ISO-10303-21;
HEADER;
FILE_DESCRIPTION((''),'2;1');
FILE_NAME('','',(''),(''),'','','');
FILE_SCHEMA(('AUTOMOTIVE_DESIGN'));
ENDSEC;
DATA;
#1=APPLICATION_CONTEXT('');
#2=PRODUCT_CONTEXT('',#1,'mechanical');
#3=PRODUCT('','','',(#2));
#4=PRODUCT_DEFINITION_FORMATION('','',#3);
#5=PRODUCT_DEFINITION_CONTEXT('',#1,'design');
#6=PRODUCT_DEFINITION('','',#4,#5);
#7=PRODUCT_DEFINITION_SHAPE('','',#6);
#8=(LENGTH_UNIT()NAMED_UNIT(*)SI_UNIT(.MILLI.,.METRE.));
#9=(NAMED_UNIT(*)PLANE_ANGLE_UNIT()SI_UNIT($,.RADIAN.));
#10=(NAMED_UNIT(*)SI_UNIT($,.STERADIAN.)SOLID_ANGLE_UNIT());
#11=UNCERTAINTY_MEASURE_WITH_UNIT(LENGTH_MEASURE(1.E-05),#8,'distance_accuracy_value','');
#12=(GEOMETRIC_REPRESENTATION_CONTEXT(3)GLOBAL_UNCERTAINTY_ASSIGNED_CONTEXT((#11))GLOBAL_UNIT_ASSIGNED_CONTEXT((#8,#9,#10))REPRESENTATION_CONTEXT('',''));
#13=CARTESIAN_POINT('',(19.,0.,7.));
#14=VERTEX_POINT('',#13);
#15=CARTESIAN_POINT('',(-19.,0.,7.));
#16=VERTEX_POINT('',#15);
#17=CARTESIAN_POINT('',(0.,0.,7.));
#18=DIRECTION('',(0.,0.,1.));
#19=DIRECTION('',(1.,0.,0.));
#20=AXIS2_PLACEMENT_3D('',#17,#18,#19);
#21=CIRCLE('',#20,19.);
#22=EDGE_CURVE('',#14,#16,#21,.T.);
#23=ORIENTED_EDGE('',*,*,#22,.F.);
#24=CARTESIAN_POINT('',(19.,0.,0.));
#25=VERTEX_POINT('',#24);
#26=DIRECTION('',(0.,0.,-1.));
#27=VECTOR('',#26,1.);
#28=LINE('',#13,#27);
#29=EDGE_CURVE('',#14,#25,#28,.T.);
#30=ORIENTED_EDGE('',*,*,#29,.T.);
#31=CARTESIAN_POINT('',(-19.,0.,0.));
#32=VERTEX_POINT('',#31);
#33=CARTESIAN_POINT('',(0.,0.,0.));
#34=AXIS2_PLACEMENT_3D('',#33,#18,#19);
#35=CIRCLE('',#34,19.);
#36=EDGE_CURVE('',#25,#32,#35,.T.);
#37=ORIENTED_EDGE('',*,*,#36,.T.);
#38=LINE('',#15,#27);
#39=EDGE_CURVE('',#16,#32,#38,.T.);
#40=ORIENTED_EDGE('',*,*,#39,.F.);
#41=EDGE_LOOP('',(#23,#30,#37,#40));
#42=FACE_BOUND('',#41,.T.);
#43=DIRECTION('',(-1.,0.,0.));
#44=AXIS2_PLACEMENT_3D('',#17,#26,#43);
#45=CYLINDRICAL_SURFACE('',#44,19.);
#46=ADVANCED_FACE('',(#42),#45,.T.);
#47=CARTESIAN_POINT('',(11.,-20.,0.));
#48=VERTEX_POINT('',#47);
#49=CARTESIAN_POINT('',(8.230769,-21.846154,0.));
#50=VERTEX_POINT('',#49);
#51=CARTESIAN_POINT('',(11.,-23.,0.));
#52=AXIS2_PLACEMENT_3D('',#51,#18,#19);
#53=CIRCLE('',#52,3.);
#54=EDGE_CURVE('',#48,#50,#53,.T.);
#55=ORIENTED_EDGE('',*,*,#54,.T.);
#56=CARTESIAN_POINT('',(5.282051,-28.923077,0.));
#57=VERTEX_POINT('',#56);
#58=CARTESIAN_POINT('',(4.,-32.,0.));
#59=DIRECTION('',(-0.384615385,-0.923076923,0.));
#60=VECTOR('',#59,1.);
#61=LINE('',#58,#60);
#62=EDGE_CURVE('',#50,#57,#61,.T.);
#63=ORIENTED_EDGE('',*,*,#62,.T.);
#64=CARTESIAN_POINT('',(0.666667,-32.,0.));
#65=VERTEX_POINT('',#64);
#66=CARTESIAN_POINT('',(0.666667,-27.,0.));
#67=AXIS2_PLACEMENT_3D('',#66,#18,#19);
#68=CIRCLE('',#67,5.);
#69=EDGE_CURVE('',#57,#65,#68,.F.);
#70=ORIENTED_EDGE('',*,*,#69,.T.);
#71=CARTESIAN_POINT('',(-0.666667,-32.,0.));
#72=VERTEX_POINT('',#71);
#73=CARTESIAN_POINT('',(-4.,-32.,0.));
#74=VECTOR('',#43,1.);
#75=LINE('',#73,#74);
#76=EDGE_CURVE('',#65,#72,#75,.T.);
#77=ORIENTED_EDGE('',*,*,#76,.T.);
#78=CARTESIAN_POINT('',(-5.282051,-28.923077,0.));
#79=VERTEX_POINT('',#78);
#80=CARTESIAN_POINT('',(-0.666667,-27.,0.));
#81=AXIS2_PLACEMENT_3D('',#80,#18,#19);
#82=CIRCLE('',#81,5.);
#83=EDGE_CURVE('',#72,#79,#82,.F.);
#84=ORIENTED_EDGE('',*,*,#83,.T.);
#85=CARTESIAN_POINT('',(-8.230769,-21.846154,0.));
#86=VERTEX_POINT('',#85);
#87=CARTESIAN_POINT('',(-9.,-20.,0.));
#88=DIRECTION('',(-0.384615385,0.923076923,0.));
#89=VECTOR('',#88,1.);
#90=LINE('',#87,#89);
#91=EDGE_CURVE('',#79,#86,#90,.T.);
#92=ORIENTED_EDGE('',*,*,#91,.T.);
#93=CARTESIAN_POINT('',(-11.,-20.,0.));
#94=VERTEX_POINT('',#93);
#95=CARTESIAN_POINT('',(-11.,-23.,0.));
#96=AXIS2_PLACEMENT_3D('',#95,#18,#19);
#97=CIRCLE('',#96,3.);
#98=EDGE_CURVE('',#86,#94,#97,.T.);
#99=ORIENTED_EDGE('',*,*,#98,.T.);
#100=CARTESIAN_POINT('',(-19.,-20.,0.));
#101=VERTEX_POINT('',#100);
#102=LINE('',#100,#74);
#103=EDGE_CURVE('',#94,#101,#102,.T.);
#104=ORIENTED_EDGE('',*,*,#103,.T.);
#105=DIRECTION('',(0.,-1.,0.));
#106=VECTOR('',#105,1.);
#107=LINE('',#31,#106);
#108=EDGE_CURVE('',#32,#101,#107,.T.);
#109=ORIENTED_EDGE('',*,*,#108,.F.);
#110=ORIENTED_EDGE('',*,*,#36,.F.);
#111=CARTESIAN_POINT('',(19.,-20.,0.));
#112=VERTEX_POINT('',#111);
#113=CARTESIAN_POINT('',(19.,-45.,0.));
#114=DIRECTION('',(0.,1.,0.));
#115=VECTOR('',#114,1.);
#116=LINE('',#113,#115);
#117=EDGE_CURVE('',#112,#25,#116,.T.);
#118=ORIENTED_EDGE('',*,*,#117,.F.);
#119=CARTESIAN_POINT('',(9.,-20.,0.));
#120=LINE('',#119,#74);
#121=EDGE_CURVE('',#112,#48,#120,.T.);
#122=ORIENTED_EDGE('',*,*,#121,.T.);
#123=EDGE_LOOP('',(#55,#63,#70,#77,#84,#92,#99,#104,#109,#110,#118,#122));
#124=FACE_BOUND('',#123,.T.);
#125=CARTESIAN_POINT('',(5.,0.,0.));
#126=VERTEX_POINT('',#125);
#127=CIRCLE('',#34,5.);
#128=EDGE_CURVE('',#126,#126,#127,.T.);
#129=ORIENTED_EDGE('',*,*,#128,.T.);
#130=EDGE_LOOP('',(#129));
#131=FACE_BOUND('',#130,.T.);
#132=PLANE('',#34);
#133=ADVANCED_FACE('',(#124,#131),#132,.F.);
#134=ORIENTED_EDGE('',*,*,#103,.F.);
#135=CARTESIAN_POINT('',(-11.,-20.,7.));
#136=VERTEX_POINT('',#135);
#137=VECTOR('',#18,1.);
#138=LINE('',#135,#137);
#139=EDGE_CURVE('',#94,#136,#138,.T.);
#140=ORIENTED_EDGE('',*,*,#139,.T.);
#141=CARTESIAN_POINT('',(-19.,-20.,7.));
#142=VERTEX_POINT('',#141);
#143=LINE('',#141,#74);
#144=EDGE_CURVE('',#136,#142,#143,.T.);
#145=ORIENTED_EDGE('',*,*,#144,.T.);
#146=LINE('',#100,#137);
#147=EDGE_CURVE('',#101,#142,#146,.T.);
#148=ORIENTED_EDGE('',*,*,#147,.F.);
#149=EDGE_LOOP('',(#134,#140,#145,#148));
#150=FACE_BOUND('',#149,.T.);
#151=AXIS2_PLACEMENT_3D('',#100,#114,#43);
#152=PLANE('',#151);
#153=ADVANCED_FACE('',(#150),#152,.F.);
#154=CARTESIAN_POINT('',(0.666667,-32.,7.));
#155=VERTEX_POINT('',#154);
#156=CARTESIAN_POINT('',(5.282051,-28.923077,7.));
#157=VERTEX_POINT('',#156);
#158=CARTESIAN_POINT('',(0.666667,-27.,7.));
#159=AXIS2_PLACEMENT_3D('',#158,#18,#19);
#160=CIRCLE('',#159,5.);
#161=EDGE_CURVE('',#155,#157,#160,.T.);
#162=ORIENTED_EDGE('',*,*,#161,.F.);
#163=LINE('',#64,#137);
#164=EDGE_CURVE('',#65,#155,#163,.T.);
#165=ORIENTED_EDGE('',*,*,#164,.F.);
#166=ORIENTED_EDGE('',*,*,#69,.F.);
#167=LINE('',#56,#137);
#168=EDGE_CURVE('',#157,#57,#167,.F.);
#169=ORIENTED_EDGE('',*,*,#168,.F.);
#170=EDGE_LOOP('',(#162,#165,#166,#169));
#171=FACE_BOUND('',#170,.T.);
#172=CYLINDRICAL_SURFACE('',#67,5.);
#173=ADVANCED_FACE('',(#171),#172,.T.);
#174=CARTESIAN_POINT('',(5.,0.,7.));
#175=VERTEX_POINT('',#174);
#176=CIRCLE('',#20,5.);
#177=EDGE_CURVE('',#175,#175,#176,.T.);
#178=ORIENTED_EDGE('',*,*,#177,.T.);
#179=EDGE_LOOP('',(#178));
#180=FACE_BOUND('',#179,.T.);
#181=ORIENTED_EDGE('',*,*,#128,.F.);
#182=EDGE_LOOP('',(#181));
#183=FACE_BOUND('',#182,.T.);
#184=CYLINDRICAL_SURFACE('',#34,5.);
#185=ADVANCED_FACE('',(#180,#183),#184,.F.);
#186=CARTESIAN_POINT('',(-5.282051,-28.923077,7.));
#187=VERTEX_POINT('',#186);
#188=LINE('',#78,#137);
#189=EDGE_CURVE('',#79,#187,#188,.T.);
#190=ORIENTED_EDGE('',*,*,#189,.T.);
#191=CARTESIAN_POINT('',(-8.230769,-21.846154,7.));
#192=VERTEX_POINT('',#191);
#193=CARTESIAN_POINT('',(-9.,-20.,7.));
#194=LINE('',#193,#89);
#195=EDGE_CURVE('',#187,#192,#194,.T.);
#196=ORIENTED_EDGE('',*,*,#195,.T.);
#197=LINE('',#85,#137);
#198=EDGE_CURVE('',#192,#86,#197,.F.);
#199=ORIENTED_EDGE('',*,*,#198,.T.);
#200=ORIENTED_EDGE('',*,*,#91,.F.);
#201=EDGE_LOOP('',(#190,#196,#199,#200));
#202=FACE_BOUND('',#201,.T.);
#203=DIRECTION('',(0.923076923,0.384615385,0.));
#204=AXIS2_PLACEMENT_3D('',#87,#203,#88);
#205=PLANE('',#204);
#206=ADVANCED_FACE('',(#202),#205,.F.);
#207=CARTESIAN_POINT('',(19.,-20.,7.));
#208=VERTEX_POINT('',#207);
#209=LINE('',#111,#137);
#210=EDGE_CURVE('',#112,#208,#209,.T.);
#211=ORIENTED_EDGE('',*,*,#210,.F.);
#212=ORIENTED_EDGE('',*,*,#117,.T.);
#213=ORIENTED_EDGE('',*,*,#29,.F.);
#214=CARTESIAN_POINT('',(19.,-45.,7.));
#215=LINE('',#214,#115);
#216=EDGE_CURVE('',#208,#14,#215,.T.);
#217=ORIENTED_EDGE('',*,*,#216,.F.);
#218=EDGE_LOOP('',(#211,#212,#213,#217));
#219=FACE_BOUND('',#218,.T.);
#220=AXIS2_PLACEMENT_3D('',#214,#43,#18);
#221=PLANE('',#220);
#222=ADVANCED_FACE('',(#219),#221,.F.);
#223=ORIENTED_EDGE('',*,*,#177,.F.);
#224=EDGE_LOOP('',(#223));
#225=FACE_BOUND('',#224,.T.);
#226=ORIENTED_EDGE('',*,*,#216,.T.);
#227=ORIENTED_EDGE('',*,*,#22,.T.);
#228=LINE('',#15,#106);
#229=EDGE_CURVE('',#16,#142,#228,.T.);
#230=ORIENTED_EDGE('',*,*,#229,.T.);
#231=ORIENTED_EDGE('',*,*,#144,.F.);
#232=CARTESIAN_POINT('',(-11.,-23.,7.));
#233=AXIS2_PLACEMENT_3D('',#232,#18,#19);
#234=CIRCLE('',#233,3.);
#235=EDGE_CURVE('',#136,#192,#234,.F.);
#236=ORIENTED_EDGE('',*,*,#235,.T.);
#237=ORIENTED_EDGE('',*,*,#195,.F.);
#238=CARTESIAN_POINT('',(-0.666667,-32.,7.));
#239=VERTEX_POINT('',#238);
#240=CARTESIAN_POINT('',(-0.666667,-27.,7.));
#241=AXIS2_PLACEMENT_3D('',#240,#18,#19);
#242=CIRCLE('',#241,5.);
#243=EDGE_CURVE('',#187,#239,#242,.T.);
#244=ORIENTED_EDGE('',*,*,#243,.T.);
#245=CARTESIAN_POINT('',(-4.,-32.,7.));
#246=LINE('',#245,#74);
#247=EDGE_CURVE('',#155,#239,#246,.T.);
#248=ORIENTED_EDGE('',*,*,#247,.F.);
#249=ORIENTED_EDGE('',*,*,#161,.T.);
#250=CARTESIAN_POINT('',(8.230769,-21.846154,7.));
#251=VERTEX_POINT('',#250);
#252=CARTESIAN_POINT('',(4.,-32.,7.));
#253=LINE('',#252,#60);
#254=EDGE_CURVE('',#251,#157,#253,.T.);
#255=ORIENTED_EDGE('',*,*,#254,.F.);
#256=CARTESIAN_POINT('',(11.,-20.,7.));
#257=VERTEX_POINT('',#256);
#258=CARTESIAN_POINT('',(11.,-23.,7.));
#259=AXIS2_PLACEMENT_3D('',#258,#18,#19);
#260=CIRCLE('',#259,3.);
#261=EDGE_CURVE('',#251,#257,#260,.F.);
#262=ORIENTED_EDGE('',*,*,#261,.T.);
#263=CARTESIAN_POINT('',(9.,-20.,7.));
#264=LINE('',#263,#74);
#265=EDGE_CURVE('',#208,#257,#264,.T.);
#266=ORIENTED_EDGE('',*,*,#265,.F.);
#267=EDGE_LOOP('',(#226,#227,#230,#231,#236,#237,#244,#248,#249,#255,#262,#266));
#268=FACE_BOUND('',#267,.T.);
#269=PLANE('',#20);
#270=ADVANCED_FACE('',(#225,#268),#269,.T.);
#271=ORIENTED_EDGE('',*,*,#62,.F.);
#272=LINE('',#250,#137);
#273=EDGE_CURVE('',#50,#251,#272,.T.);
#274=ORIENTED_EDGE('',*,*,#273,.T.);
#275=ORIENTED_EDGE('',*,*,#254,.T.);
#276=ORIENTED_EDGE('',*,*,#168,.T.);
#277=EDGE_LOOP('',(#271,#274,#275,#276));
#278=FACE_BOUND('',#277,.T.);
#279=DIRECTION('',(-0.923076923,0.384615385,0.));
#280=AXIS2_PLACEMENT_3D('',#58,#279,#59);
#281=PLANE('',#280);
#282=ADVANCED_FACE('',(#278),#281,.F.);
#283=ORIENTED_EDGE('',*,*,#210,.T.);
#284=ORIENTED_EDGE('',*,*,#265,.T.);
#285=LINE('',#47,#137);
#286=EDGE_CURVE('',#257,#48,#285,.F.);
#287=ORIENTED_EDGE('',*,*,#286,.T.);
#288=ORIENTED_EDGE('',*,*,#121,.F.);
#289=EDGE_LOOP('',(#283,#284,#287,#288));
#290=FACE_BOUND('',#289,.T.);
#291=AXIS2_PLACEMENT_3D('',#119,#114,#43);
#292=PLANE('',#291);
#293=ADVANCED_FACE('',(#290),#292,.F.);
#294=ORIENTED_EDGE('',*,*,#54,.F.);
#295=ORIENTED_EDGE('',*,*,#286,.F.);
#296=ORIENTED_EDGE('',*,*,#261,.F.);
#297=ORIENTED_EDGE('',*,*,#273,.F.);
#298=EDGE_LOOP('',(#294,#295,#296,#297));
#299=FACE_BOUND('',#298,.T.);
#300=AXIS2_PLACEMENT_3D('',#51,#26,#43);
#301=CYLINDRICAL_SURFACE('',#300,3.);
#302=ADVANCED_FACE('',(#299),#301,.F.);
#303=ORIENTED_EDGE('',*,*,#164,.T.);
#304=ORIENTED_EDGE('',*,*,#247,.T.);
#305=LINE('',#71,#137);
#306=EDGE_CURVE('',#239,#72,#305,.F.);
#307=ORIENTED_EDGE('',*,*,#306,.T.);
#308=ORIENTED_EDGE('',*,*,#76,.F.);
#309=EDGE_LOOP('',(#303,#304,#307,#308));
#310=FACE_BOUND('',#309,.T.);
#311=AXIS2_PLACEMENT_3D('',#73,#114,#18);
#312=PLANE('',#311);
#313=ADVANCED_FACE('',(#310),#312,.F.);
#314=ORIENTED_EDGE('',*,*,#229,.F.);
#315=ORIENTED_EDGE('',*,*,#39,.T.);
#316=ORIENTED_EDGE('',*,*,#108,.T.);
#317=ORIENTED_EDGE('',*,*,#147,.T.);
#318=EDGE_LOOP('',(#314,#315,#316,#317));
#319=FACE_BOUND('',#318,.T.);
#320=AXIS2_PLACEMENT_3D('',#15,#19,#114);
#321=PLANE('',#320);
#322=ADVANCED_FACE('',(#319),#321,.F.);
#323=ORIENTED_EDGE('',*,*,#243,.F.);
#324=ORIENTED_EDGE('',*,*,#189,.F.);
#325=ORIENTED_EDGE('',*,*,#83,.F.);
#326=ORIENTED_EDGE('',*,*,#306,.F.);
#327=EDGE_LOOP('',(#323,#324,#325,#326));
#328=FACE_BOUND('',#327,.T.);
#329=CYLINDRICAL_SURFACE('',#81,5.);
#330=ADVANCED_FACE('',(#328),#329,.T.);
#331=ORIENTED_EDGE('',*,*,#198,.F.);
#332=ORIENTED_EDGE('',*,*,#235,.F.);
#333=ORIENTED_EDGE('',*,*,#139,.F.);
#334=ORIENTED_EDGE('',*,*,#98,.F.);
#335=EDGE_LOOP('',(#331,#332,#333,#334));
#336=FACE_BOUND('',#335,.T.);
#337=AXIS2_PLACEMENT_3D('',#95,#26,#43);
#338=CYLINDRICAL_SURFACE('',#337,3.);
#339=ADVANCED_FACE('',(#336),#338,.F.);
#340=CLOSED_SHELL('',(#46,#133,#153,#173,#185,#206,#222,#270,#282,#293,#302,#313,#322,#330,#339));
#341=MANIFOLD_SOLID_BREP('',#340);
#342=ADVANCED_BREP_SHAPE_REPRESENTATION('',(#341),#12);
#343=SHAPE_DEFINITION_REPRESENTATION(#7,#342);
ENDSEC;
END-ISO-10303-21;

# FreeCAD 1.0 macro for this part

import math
import FreeCAD as App
import Part
import Sketcher
from FreeCAD import Vector
Q = App.Units.Quantity


def edges_at(feature, points):
    """Names of the edges that pass closest to the given points."""
    edges = feature.Shape.Edges
    near = lambda p: min(range(len(edges)), key=lambda i: edges[i].distToShape(Part.Vertex(*p))[0])
    return sorted({f"Edge{near(p) + 1}" for p in points})


def add_polygon(sketch, points):
    """Adds a closed chain of lines whose ends are joined by coincident constraints."""
    first, n = sketch.GeometryCount, len(points)
    for a, b in zip(points, points[1:] + points[:1]):
        sketch.addGeometry(Part.LineSegment(App.Vector(*a, 0), App.Vector(*b, 0)), False)
    for i in range(n):
        sketch.addConstraint(Sketcher.Constraint("Coincident", first + i, 2, first + (i + 1) % n, 1))

doc = App.newDocument("Part")
params = doc.addObject("Spreadsheet::Sheet", "Params")
for row, (alias, value) in enumerate([
    ("sketch1_diameter", "3 mm"),
    ("sketch1_diameter2", "5 mm"),
    ("sketch1_radius", "19 mm"),
    ("sketch1_width", "10 mm"),
    ("sketch1_height", "32 mm"),
    ("pad1_length", "7 mm"),
    ("sketch2_diameter", "10 mm"),
    ("sketch2_width", "10 mm"),
    ("sketch2_width2", "38 mm"),
    ("sketch2_width3", "8 mm"),
    ("sketch2_height", "25 mm"),
    ("fillet_radius", "5 mm"),
    ("fillet2_radius", "3 mm"),
], start=1):
    params.set(f"A{row}", alias)
    params.set(f"B{row}", "=" + value)
    params.setAlias(f"B{row}", alias)

body = doc.addObject("PartDesign::Body", "Body")

sketch1 = doc.addObject("Sketcher::SketchObject", "Sketch")
body.addObject(sketch1)
sketch1.AttachmentSupport = (doc.XY_Plane, [""])
sketch1.MapMode = "FlatFace"
sketch1.addGeometry([
    Part.LineSegment(Vector(-19, 0, 0), Vector(-19, -32, 0)),
    Part.LineSegment(Vector(-19, -32, 0), Vector(-14.8, -32, 0)),
    Part.LineSegment(Vector(-14.8, -32, 0), Vector(-14.8, -45, 0)),
    Part.LineSegment(Vector(-14.8, -45, 0), Vector(-5, -45, 0)),
    Part.LineSegment(Vector(-5, -45, 0), Vector(-5, -42, 0)),
    Part.LineSegment(Vector(-5, -42, 0), Vector(5, -42, 0)),
    Part.LineSegment(Vector(5, -42, 0), Vector(5, -45, 0)),
    Part.LineSegment(Vector(5, -45, 0), Vector(19, -45, 0)),
    Part.LineSegment(Vector(19, -45, 0), Vector(19, 0, 0)),
    Part.ArcOfCircle(Part.Circle(Vector(0, 0, 0), Vector(0, 0, 1), 19), math.radians(0), math.radians(180)),
    Part.Circle(Vector(-14, -27, 0), Vector(0, 0, 1), 1.5),
    Part.Circle(Vector(14, -27, 0), Vector(0, 0, 1), 1.5),
    Part.Circle(Vector(0, 0, 0), Vector(0, 0, 1), 2.5),
], False)
sketch1.addConstraint([
    Sketcher.Constraint("Coincident", 0, 2, 1, 1),
    Sketcher.Constraint("Coincident", 1, 2, 2, 1),
    Sketcher.Constraint("Coincident", 2, 2, 3, 1),
    Sketcher.Constraint("Coincident", 3, 2, 4, 1),
    Sketcher.Constraint("Coincident", 4, 2, 5, 1),
    Sketcher.Constraint("Coincident", 5, 2, 6, 1),
    Sketcher.Constraint("Coincident", 6, 2, 7, 1),
    Sketcher.Constraint("Coincident", 7, 2, 8, 1),
    Sketcher.Constraint("Tangent", 8, 2, 9, 1),
    Sketcher.Constraint("Tangent", 9, 2, 0, 1),
    Sketcher.Constraint("Vertical", 0),
    Sketcher.Constraint("Horizontal", 1),
    Sketcher.Constraint("Vertical", 2),
    Sketcher.Constraint("Horizontal", 3),
    Sketcher.Constraint("Vertical", 4),
    Sketcher.Constraint("Horizontal", 5),
    Sketcher.Constraint("Vertical", 6),
    Sketcher.Constraint("Horizontal", 7),
    Sketcher.Constraint("Vertical", 8),
    Sketcher.Constraint("Coincident", 9, 3, -1, 1),
    Sketcher.Constraint("Coincident", 12, 3, -1, 1),
    Sketcher.Constraint("Equal", 10, 11),
    Sketcher.Constraint("Symmetric", 10, 3, 11, 3, -2),
    Sketcher.Constraint("Symmetric", 3, 2, 6, 2, -2),
    Sketcher.Constraint("Diameter", 10, Q("3 mm")),
    Sketcher.Constraint("Diameter", 12, Q("5 mm")),
    Sketcher.Constraint("Radius", 9, Q("19 mm")),
    Sketcher.Constraint("DistanceX", 5, 1, 5, 2, Q("10 mm")),
    Sketcher.Constraint("DistanceY", 0, 2, 0, 1, Q("32 mm")),
    Sketcher.Constraint("DistanceY", 2, 2, 2, 1, Q("13 mm")),
    Sketcher.Constraint("DistanceY", 4, 1, 4, 2, Q("3 mm")),
    Sketcher.Constraint("DistanceX", 1, 1, 1, 2, Q("4.2 mm")),
    Sketcher.Constraint("DistanceX", 10, 3, -1, 1, Q("14 mm")),
    Sketcher.Constraint("DistanceY", 10, 3, -1, 1, Q("27 mm")),
])
sketch1.setExpression("Constraints[24]", "Params.sketch1_diameter")
sketch1.setExpression("Constraints[25]", "Params.sketch1_diameter2")
sketch1.setExpression("Constraints[26]", "Params.sketch1_radius")
sketch1.setExpression("Constraints[27]", "Params.sketch1_width")
sketch1.setExpression("Constraints[28]", "Params.sketch1_height")
pad1 = doc.addObject("PartDesign::Pad", "Pad")
body.addObject(pad1)
pad1.Profile = sketch1
pad1.setExpression("Length", "Params.pad1_length")

sketch2 = doc.addObject("Sketcher::SketchObject", "Sketch001")
body.addObject(sketch2)
sketch2.AttachmentSupport = (doc.XY_Plane, [""])
sketch2.MapMode = "FlatFace"
sketch2.AttachmentOffset = App.Placement(Vector(0, 0, 7), App.Rotation())
sketch2.addGeometry(Part.Circle(Vector(0, 0, 0), Vector(0, 0, 1), 5), False)
add_polygon(sketch2, [(-9, -20), (-19, -20), (-19, -45), (19, -45), (19, -20), (9, -20), (4, -32), (-4, -32)])
sketch2.addConstraint([
    Sketcher.Constraint("Horizontal", 1),
    Sketcher.Constraint("Vertical", 2),
    Sketcher.Constraint("Horizontal", 3),
    Sketcher.Constraint("Vertical", 4),
    Sketcher.Constraint("Horizontal", 5),
    Sketcher.Constraint("Horizontal", 7),
    Sketcher.Constraint("Coincident", 0, 3, -1, 1),
    Sketcher.Constraint("Symmetric", 1, 2, 4, 2, -2),
    Sketcher.Constraint("Equal", 1, 5),
    Sketcher.Constraint("Equal", 6, 8),
    Sketcher.Constraint("Diameter", 0, Q("10 mm")),
    Sketcher.Constraint("DistanceX", 1, 2, 1, 1, Q("10 mm")),
    Sketcher.Constraint("DistanceX", 3, 1, 3, 2, Q("38 mm")),
    Sketcher.Constraint("DistanceX", 7, 2, 7, 1, Q("8 mm")),
    Sketcher.Constraint("DistanceY", 2, 2, 2, 1, Q("25 mm")),
    Sketcher.Constraint("Distance", 6, Q("13 mm")),
    Sketcher.Constraint("DistanceY", 1, 2, -1, 1, Q("20 mm")),
])
sketch2.setExpression("Constraints[18]", "Params.sketch2_diameter")
sketch2.setExpression("Constraints[19]", "Params.sketch2_width")
sketch2.setExpression("Constraints[20]", "Params.sketch2_width2")
sketch2.setExpression("Constraints[21]", "Params.sketch2_width3")
sketch2.setExpression("Constraints[22]", "Params.sketch2_height")
pocket1 = doc.addObject("PartDesign::Pocket", "Pocket")
body.addObject(pocket1)
pocket1.Profile = sketch2
pocket1.Type = "ThroughAll"
doc.recompute()

fillet = doc.addObject("PartDesign::Fillet", "Fillet")
body.addObject(fillet)
fillet.Base = (pocket1, edges_at(pocket1, [(-4, -32, 3.5), (4, -32, 3.5)]))
fillet.setExpression("Radius", "Params.fillet_radius")
doc.recompute()

fillet2 = doc.addObject("PartDesign::Fillet", "Fillet001")
body.addObject(fillet2)
fillet2.Base = (fillet, edges_at(fillet, [(-9, -20, 3.5), (9, -20, 3.5)]))
fillet2.setExpression("Radius", "Params.fillet2_radius")

doc.recompute()
